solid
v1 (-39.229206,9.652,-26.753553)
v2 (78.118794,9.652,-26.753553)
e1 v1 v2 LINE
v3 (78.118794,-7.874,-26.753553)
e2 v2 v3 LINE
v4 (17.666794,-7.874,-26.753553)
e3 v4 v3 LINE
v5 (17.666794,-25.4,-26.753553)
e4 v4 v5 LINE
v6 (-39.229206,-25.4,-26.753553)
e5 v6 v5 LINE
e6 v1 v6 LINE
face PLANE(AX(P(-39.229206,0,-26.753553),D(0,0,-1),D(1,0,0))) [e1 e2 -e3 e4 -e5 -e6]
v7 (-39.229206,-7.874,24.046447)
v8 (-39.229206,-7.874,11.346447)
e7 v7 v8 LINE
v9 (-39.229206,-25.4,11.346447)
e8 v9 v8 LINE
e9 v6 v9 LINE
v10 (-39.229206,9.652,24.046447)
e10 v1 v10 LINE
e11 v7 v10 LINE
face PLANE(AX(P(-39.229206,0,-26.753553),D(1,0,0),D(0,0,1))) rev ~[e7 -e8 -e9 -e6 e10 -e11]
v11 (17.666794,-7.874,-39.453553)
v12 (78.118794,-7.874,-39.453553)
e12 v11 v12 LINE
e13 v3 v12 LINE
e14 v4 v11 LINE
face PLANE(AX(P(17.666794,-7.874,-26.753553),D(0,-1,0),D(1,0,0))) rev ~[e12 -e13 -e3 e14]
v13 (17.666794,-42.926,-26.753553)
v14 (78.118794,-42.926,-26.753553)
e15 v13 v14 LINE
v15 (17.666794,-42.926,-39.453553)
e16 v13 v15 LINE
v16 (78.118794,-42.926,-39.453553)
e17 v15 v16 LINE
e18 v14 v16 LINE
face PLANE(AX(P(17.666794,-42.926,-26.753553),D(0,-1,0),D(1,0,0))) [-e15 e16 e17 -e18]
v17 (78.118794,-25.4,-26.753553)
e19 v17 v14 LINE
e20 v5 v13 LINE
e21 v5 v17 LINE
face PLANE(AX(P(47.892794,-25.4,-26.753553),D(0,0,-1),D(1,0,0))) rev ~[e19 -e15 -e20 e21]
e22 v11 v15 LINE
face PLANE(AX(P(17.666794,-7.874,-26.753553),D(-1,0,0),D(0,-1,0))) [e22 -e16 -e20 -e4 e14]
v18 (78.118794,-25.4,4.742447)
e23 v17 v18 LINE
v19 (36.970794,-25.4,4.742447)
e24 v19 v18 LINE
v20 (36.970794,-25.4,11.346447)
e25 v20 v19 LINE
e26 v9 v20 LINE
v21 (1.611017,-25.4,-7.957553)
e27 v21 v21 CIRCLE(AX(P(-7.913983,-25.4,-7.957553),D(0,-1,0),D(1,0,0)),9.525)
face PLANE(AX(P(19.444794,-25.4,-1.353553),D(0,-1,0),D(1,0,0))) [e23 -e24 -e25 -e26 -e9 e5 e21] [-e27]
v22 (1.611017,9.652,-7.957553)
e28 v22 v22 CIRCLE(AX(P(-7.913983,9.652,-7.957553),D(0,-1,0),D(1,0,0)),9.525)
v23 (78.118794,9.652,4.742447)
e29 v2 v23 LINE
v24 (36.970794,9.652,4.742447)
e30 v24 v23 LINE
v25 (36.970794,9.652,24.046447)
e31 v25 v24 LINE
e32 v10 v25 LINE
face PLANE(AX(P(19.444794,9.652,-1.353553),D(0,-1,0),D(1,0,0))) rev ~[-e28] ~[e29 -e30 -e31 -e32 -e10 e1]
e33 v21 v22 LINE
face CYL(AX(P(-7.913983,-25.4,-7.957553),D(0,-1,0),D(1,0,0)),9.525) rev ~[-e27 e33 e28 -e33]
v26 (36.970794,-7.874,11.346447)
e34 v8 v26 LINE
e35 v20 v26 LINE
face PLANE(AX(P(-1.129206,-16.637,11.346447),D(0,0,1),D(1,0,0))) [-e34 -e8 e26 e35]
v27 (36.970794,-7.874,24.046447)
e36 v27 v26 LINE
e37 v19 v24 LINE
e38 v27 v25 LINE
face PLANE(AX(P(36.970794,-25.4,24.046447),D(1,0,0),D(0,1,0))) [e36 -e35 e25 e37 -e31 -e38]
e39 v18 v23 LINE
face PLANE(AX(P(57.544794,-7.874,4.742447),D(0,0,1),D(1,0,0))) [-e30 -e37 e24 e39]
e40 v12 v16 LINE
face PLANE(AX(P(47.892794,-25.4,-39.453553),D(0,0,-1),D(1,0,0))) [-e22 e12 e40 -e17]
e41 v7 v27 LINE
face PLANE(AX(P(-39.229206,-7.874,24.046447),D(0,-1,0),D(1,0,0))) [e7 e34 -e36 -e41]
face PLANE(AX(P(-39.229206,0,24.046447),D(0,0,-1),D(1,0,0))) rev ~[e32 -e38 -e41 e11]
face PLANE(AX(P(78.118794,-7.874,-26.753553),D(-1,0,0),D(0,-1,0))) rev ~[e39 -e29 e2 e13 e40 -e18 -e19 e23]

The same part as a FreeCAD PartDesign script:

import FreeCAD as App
import Part
import Sketcher
from FreeCAD import Vector
Q = App.Units.Quantity


def add_polygon(sketch, points):
    """Adds a closed chain of lines whose ends are joined by coincident constraints."""
    first, n = sketch.GeometryCount, len(points)
    for a, b in zip(points, points[1:] + points[:1]):
        sketch.addGeometry(Part.LineSegment(App.Vector(*a, 0), App.Vector(*b, 0)), False)
    for i in range(n):
        sketch.addConstraint(Sketcher.Constraint("Coincident", first + i, 2, first + (i + 1) % n, 1))

doc = App.newDocument("Part")
params = doc.addObject("Spreadsheet::Sheet", "Params")
for row, (alias, value) in enumerate([
    ("sketch1_height", "2 in"),
    ("sketch1_width", "4.62 in"),
    ("pad1_length", "1 in"),
    ("sketch2_height", "2 in"),
    ("sketch2_width", "4.62 in"),
    ("pad2_length", "0.38 in"),
    ("sketch3_diameter", "0.75 in"),
    ("sketch4_width", "2.38 in"),
    ("sketch4_height", "1.38 in"),
    ("pad3_length", "0.5 in"),
    ("sketch5_width", "3 in"),
    ("sketch5_height", "0.69 in"),
    ("pocket2_length", "0.5 in"),
    ("sketch6_width", "1.62 in"),
    ("sketch6_height", "1.38 in"),
    ("pocket3_length", "0.76 in"),
], start=1):
    params.set(f"A{row}", alias)
    params.set(f"B{row}", "=" + value)
    params.setAlias(f"B{row}", alias)

body = doc.addObject("PartDesign::Body", "Body")

# Sketch on XZ plane
sketch1 = body.newObject("Sketcher::SketchObject", "Sketch")
sketch1.AttachmentSupport = (doc.getObject("XZ_Plane"), [""])
sketch1.MapMode = "FlatFace"
add_polygon(sketch1, [(-39.229206, 24.046447), (-39.229206, -26.753553), (78.118794, -26.753553), (78.118794, 24.046447)])  # lines 0-3
sketch1.addConstraint(Sketcher.Constraint("Vertical", 0))
sketch1.addConstraint(Sketcher.Constraint("Horizontal", 1))
sketch1.addConstraint(Sketcher.Constraint("Vertical", 2))
sketch1.addConstraint(Sketcher.Constraint("Horizontal", 3))
sketch1.addConstraint(Sketcher.Constraint("DistanceY", 0, 2, 0, 1, Q("2 in")))
sketch1.addConstraint(Sketcher.Constraint("DistanceX", 1, 1, 1, 2, Q("4.62 in")))
sketch1.addConstraint(Sketcher.Constraint("DistanceX", 0, 2, -1, 1, 39.229206))
sketch1.addConstraint(Sketcher.Constraint("DistanceY", 0, 2, -1, 1, 26.753553))
sketch1.setExpression("Constraints[8]", "Params.sketch1_height")
sketch1.setExpression("Constraints[9]", "Params.sketch1_width")
pad1 = body.newObject("PartDesign::Pad", "Pad")
pad1.Profile = sketch1
pad1.setExpression("Length", "Params.pad1_length")

# Sketch on XZ plane
sketch2 = body.newObject("Sketcher::SketchObject", "Sketch001")
sketch2.AttachmentSupport = (doc.getObject("XZ_Plane"), [""])
sketch2.MapMode = "FlatFace"
add_polygon(sketch2, [(-39.229206, 24.046447), (-39.229206, -26.753553), (78.118794, -26.753553), (78.118794, 24.046447)])  # lines 0-3
sketch2.addConstraint(Sketcher.Constraint("Vertical", 0))
sketch2.addConstraint(Sketcher.Constraint("Horizontal", 1))
sketch2.addConstraint(Sketcher.Constraint("Vertical", 2))
sketch2.addConstraint(Sketcher.Constraint("Horizontal", 3))
sketch2.addConstraint(Sketcher.Constraint("DistanceY", 0, 2, 0, 1, Q("2 in")))
sketch2.addConstraint(Sketcher.Constraint("DistanceX", 1, 1, 1, 2, Q("4.62 in")))
sketch2.addConstraint(Sketcher.Constraint("DistanceX", 0, 2, -1, 1, 39.229206))
sketch2.addConstraint(Sketcher.Constraint("DistanceY", 0, 2, -1, 1, 26.753553))
sketch2.setExpression("Constraints[8]", "Params.sketch2_height")
sketch2.setExpression("Constraints[9]", "Params.sketch2_width")
pad2 = body.newObject("PartDesign::Pad", "Pad001")
pad2.Profile = sketch2
pad2.setExpression("Length", "Params.pad2_length")
pad2.Reversed = True

# Sketch on XZ plane
sketch3 = body.newObject("Sketcher::SketchObject", "Sketch002")
sketch3.AttachmentSupport = (doc.getObject("XZ_Plane"), [""])
sketch3.MapMode = "FlatFace"
sketch3.AttachmentOffset = App.Placement(Vector(0, 0, 1 * 25.4), App.Rotation())
sketch3.addGeometry(Part.Circle(Vector(-7.913983, -7.957553, 0), Vector(0, 0, 1), 9.525), False)
sketch3.addConstraint(Sketcher.Constraint("Diameter", 0, Q("0.75 in")))
sketch3.addConstraint(Sketcher.Constraint("DistanceX", 0, 3, -1, 1, 7.913983))
sketch3.addConstraint(Sketcher.Constraint("DistanceY", 0, 3, -1, 1, 7.957553))
sketch3.setExpression("Constraints[0]", "Params.sketch3_diameter")
pocket1 = body.newObject("PartDesign::Pocket", "Pocket")
pocket1.Profile = sketch3
pocket1.Type = "ThroughAll"

# Sketch on XY plane
sketch4 = body.newObject("Sketcher::SketchObject", "Sketch003")
sketch4.AttachmentSupport = (doc.getObject("XY_Plane"), [""])
sketch4.MapMode = "FlatFace"
sketch4.AttachmentOffset = App.Placement(Vector(0, 0, -26.753553), App.Rotation())
add_polygon(sketch4, [(17.666794, -42.926), (17.666794, -7.874), (78.118794, -7.874), (78.118794, -42.926)])  # lines 0-3
sketch4.addConstraint(Sketcher.Constraint("Vertical", 0))
sketch4.addConstraint(Sketcher.Constraint("Horizontal", 1))
sketch4.addConstraint(Sketcher.Constraint("Vertical", 2))
sketch4.addConstraint(Sketcher.Constraint("Horizontal", 3))
sketch4.addConstraint(Sketcher.Constraint("DistanceX", 1, 1, 1, 2, Q("2.38 in")))
sketch4.addConstraint(Sketcher.Constraint("DistanceY", 0, 1, 0, 2, Q("1.38 in")))
sketch4.addConstraint(Sketcher.Constraint("DistanceY", 0, 2, -1, 1, Q("0.31 in")))
sketch4.addConstraint(Sketcher.Constraint("DistanceX", -1, 1, 0, 2, 17.666794))
sketch4.setExpression("Constraints[8]", "Params.sketch4_width")
sketch4.setExpression("Constraints[9]", "Params.sketch4_height")
pad3 = body.newObject("PartDesign::Pad", "Pad002")
pad3.Profile = sketch4
pad3.setExpression("Length", "Params.pad3_length")
pad3.Reversed = True

# Sketch on XY plane
sketch5 = body.newObject("Sketcher::SketchObject", "Sketch004")
sketch5.AttachmentSupport = (doc.getObject("XY_Plane"), [""])
sketch5.MapMode = "FlatFace"
sketch5.AttachmentOffset = App.Placement(Vector(0, 0, 24.046447), App.Rotation())
add_polygon(sketch5, [(-39.229206, -7.874), (-39.229206, -25.4), (36.970794, -25.4), (36.970794, -7.874)])  # lines 0-3
sketch5.addConstraint(Sketcher.Constraint("Vertical", 0))
sketch5.addConstraint(Sketcher.Constraint("Horizontal", 1))
sketch5.addConstraint(Sketcher.Constraint("Vertical", 2))
sketch5.addConstraint(Sketcher.Constraint("Horizontal", 3))
sketch5.addConstraint(Sketcher.Constraint("DistanceX", 1, 1, 1, 2, Q("3 in")))
sketch5.addConstraint(Sketcher.Constraint("DistanceY", 0, 2, -1, 1, Q("1 in")))
sketch5.addConstraint(Sketcher.Constraint("DistanceY", 0, 2, 0, 1, Q("0.69 in")))
sketch5.addConstraint(Sketcher.Constraint("DistanceX", 0, 2, -1, 1, 39.229206))
sketch5.setExpression("Constraints[8]", "Params.sketch5_width")
sketch5.setExpression("Constraints[10]", "Params.sketch5_height")
pocket2 = body.newObject("PartDesign::Pocket", "Pocket001")
pocket2.Profile = sketch5
pocket2.setExpression("Length", "Params.pocket2_length")

# Sketch on XY plane
sketch6 = body.newObject("Sketcher::SketchObject", "Sketch005")
sketch6.AttachmentSupport = (doc.getObject("XY_Plane"), [""])
sketch6.MapMode = "FlatFace"
sketch6.AttachmentOffset = App.Placement(Vector(0, 0, 24.046447), App.Rotation())
add_polygon(sketch6, [(36.970794, 9.652), (36.970794, -25.4), (78.118794, -25.4), (78.118794, 9.652)])  # lines 0-3
sketch6.addConstraint(Sketcher.Constraint("Vertical", 0))
sketch6.addConstraint(Sketcher.Constraint("Horizontal", 1))
sketch6.addConstraint(Sketcher.Constraint("Vertical", 2))
sketch6.addConstraint(Sketcher.Constraint("Horizontal", 3))
sketch6.addConstraint(Sketcher.Constraint("DistanceY", 0, 2, -1, 1, Q("1 in")))
sketch6.addConstraint(Sketcher.Constraint("DistanceX", 1, 1, 1, 2, Q("1.62 in")))
sketch6.addConstraint(Sketcher.Constraint("DistanceY", 0, 2, 0, 1, Q("1.38 in")))
sketch6.addConstraint(Sketcher.Constraint("DistanceX", -1, 1, 0, 2, 36.970794))
sketch6.setExpression("Constraints[9]", "Params.sketch6_width")
sketch6.setExpression("Constraints[10]", "Params.sketch6_height")
pocket3 = body.newObject("PartDesign::Pocket", "Pocket002")
pocket3.Profile = sketch6
pocket3.setExpression("Length", "Params.pocket3_length")

doc.recompute()
